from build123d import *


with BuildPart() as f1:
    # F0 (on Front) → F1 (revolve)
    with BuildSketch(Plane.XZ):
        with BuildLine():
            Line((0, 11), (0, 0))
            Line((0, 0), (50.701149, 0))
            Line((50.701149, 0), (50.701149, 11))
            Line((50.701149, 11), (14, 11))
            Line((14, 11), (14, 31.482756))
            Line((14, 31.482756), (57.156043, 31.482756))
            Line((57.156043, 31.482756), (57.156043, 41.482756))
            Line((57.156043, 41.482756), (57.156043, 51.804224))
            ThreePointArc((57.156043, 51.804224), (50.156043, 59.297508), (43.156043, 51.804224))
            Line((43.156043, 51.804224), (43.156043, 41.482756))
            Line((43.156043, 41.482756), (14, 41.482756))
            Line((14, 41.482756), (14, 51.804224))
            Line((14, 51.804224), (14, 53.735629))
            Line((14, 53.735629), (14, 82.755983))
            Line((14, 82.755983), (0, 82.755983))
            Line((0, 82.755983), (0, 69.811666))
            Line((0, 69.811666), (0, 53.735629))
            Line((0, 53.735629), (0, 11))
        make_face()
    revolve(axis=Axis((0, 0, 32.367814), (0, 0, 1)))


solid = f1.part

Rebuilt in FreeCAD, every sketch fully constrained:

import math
import FreeCAD as App
import Part
import Sketcher
Q = App.Units.Quantity

doc = App.newDocument("Part")
params = doc.addObject("Spreadsheet::Sheet", "Params")
for row, (alias, value) in enumerate([
    ("sketch1_width", "14 mm"),
    ("sketch1_height", "11 mm"),
    ("revolution_angle", "360 deg"),
], start=1):
    params.set(f"A{row}", alias)
    params.set(f"B{row}", "=" + value)
    params.setAlias(f"B{row}", alias)

body = doc.addObject("PartDesign::Body", "Body")

# Sketch on XZ plane
sketch1 = body.newObject("Sketcher::SketchObject", "Sketch")
sketch1.AttachmentSupport = (doc.getObject("XZ_Plane"), [""])
sketch1.MapMode = "FlatFace"
sketch1.addGeometry(Part.LineSegment(App.Vector(0, 0, 0), App.Vector(51, 0, 0)), False)
sketch1.addGeometry(Part.LineSegment(App.Vector(51, 0, 0), App.Vector(51, 11, 0)), False)
sketch1.addGeometry(Part.LineSegment(App.Vector(51, 11, 0), App.Vector(14, 11, 0)), False)
sketch1.addGeometry(Part.LineSegment(App.Vector(14, 11, 0), App.Vector(14, 31, 0)), False)
sketch1.addGeometry(Part.LineSegment(App.Vector(14, 31, 0), App.Vector(57, 31, 0)), False)
sketch1.addGeometry(Part.LineSegment(App.Vector(57, 31, 0), App.Vector(57, 52, 0)), False)
sketch1.addGeometry(Part.ArcOfCircle(Part.Circle(App.Vector(50, 52, 0), App.Vector(0, 0, 1), 7), math.radians(-4), math.radians(184)), False)
sketch1.addGeometry(Part.LineSegment(App.Vector(43, 52, 0), App.Vector(43, 41, 0)), False)
sketch1.addGeometry(Part.LineSegment(App.Vector(43, 41, 0), App.Vector(14, 41, 0)), False)
sketch1.addGeometry(Part.LineSegment(App.Vector(14, 41, 0), App.Vector(14, 83, 0)), False)
sketch1.addGeometry(Part.LineSegment(App.Vector(14, 83, 0), App.Vector(0, 83, 0)), False)
sketch1.addGeometry(Part.LineSegment(App.Vector(0, 83, 0), App.Vector(0, 0, 0)), False)
sketch1.addConstraint(Sketcher.Constraint("Coincident", 0, 2, 1, 1))
sketch1.addConstraint(Sketcher.Constraint("Coincident", 1, 2, 2, 1))
sketch1.addConstraint(Sketcher.Constraint("Coincident", 2, 2, 3, 1))
sketch1.addConstraint(Sketcher.Constraint("Coincident", 3, 2, 4, 1))
sketch1.addConstraint(Sketcher.Constraint("Coincident", 4, 2, 5, 1))
sketch1.addConstraint(Sketcher.Constraint("Coincident", 5, 2, 6, 1))
sketch1.addConstraint(Sketcher.Constraint("Coincident", 6, 2, 7, 1))
sketch1.addConstraint(Sketcher.Constraint("Coincident", 7, 2, 8, 1))
sketch1.addConstraint(Sketcher.Constraint("Coincident", 8, 2, 9, 1))
sketch1.addConstraint(Sketcher.Constraint("Coincident", 9, 2, 10, 1))
sketch1.addConstraint(Sketcher.Constraint("Coincident", 10, 2, 11, 1))
sketch1.addConstraint(Sketcher.Constraint("Coincident", 11, 2, 0, 1))
sketch1.addConstraint(Sketcher.Constraint("Horizontal", 0))
sketch1.addConstraint(Sketcher.Constraint("Vertical", 1))
sketch1.addConstraint(Sketcher.Constraint("Horizontal", 2))
sketch1.addConstraint(Sketcher.Constraint("Vertical", 3))
sketch1.addConstraint(Sketcher.Constraint("Horizontal", 4))
sketch1.addConstraint(Sketcher.Constraint("Vertical", 5))
sketch1.addConstraint(Sketcher.Constraint("Vertical", 7))
sketch1.addConstraint(Sketcher.Constraint("Horizontal", 8))
sketch1.addConstraint(Sketcher.Constraint("Vertical", 9))
sketch1.addConstraint(Sketcher.Constraint("Horizontal", 10))
sketch1.addConstraint(Sketcher.Constraint("Vertical", 11))
sketch1.addConstraint(Sketcher.Constraint("Coincident", 11, 2, -1, 1))
sketch1.addConstraint(Sketcher.Constraint("Horizontal", 5, 2, 6, 2))
sketch1.addConstraint(Sketcher.Constraint("Vertical", 3, 2, 8, 2))
sketch1.addConstraint(Sketcher.Constraint("DistanceX", 10, 2, 10, 1, Q("14 mm")))
sketch1.addConstraint(Sketcher.Constraint("DistanceY", 1, 1, 1, 2, Q("11 mm")))
sketch1.addConstraint(Sketcher.Constraint("DistanceX", 6, 3, 4, 2, Q("7 mm")))
sketch1.addConstraint(Sketcher.Constraint("DistanceY", 4, 2, 7, 2, Q("10 mm")))
sketch1.addConstraint(Sketcher.Constraint("Radius", 6, Q("7.016236 mm")))
sketch1.addConstraint(Sketcher.Constraint("DistanceX", 0, 1, 0, 2, Q("50.701149 mm")))
sketch1.addConstraint(Sketcher.Constraint("DistanceX", 4, 1, 4, 2, Q("43.156043 mm")))
sketch1.addConstraint(Sketcher.Constraint("DistanceY", 3, 1, 3, 2, Q("20.482756 mm")))
sketch1.addConstraint(Sketcher.Constraint("DistanceY", 5, 1, 5, 2, Q("20.321468 mm")))
sketch1.addConstraint(Sketcher.Constraint("DistanceY", 9, 1, 9, 2, Q("41.273227 mm")))
sketch1.setExpression("Constraints[26]", "Params.sketch1_width")
sketch1.setExpression("Constraints[27]", "Params.sketch1_height")
revolution = body.newObject("PartDesign::Revolution", "Revolution")
revolution.Profile = sketch1
revolution.ReferenceAxis = (sketch1, ["V_Axis"])
revolution.setExpression("Angle", "Params.revolution_angle")

doc.recompute()
